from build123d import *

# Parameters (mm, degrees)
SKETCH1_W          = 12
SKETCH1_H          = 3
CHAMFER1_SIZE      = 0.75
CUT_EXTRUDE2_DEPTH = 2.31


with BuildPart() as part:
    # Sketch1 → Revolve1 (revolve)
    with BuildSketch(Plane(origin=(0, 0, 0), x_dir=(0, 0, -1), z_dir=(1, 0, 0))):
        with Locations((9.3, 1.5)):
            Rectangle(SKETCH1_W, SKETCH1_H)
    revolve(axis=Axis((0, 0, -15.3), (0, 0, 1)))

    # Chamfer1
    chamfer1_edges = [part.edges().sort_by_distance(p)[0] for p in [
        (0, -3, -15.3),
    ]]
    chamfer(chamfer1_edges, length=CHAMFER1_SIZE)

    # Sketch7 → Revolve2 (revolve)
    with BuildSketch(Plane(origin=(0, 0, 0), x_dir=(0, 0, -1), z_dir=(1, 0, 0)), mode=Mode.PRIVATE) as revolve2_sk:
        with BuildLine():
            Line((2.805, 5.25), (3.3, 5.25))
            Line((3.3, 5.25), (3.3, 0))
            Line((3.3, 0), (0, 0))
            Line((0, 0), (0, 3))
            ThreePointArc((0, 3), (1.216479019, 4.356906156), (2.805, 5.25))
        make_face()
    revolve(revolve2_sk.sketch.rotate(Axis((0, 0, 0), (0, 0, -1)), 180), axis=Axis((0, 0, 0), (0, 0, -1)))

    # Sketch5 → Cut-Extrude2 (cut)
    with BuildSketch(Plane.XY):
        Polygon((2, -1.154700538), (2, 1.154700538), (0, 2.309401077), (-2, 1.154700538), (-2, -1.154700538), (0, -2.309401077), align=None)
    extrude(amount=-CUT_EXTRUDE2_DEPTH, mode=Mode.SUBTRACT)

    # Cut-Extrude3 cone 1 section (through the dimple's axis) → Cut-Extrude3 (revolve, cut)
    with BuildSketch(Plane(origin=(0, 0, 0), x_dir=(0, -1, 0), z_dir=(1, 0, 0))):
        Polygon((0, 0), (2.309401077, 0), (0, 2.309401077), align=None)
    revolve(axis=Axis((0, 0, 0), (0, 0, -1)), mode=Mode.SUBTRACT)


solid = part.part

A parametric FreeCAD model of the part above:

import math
import FreeCAD as App
import Part
import Sketcher
Q = App.Units.Quantity


def edges_at(feature, points):
    """Names of the edges that pass closest to the given points."""
    edges = feature.Shape.Edges
    near = lambda p: min(range(len(edges)), key=lambda i: edges[i].distToShape(Part.Vertex(*p))[0])
    return sorted({f"Edge{near(p) + 1}" for p in points})


def add_polygon(sketch, points):
    """Adds a closed chain of lines whose ends are joined by coincident constraints."""
    first, n = sketch.GeometryCount, len(points)
    for a, b in zip(points, points[1:] + points[:1]):
        sketch.addGeometry(Part.LineSegment(App.Vector(*a, 0), App.Vector(*b, 0)), False)
    for i in range(n):
        sketch.addConstraint(Sketcher.Constraint("Coincident", first + i, 2, first + (i + 1) % n, 1))

doc = App.newDocument("Part")
body = doc.addObject("PartDesign::Body", "Body")

# Sketch on YZ plane
sketch1 = body.newObject("Sketcher::SketchObject", "Sketch")
sketch1.AttachmentSupport = (doc.getObject("YZ_Plane"), [""])
sketch1.MapMode = "FlatFace"
add_polygon(sketch1, [(3, -3.3), (0, -3.3), (0, -15.3), (3, -15.3)])  # lines 0-3
sketch1.addConstraint(Sketcher.Constraint("Horizontal", 0))
sketch1.addConstraint(Sketcher.Constraint("Vertical", 1))
sketch1.addConstraint(Sketcher.Constraint("Horizontal", 2))
sketch1.addConstraint(Sketcher.Constraint("Vertical", 3))
sketch1.addConstraint(Sketcher.Constraint("PointOnObject", 0, 2, -2))
sketch1.addConstraint(Sketcher.Constraint("DistanceX", 0, 2, 0, 1, Q("3 mm")))
sketch1.addConstraint(Sketcher.Constraint("DistanceY", 1, 2, 1, 1, Q("12 mm")))
sketch1.addConstraint(Sketcher.Constraint("DistanceY", 0, 2, -1, 1, Q("3.3 mm")))
revolution = body.newObject("PartDesign::Revolution", "Revolution")
revolution.Profile = sketch1
revolution.ReferenceAxis = (sketch1, ["V_Axis"])
revolution.Angle = 360
doc.recompute()

chamfer = body.newObject("PartDesign::Chamfer", "Chamfer")
chamfer.Base = (revolution, edges_at(revolution, [(0, -3, -15.3)]))
chamfer.Size = 0.75

# Sketch on YZ plane
sketch2 = body.newObject("Sketcher::SketchObject", "Sketch001")
sketch2.AttachmentSupport = (doc.getObject("YZ_Plane"), [""])
sketch2.MapMode = "FlatFace"
sketch2.addGeometry(Part.LineSegment(App.Vector(5.25, -3.3, 0), App.Vector(5.25, -2.81, 0)), False)
sketch2.addGeometry(Part.ArcOfCircle(Part.Circle(App.Vector(0, -4.71, 0), App.Vector(0, 0, 1), 5.59), math.radians(20), math.radians(58)), False)
sketch2.addGeometry(Part.LineSegment(App.Vector(3, 0, 0), App.Vector(0, 0, 0)), False)
sketch2.addGeometry(Part.LineSegment(App.Vector(0, 0, 0), App.Vector(0, -3.3, 0)), False)
sketch2.addGeometry(Part.LineSegment(App.Vector(0, -3.3, 0), App.Vector(5.25, -3.3, 0)), False)
sketch2.addConstraint(Sketcher.Constraint("Coincident", 0, 2, 1, 1))
sketch2.addConstraint(Sketcher.Constraint("Coincident", 1, 2, 2, 1))
sketch2.addConstraint(Sketcher.Constraint("Coincident", 2, 2, 3, 1))
sketch2.addConstraint(Sketcher.Constraint("Coincident", 3, 2, 4, 1))
sketch2.addConstraint(Sketcher.Constraint("Coincident", 4, 2, 0, 1))
sketch2.addConstraint(Sketcher.Constraint("Vertical", 0))
sketch2.addConstraint(Sketcher.Constraint("Horizontal", 2))
sketch2.addConstraint(Sketcher.Constraint("Vertical", 3))
sketch2.addConstraint(Sketcher.Constraint("Horizontal", 4))
sketch2.addConstraint(Sketcher.Constraint("Coincident", 2, 2, -1, 1))
sketch2.addConstraint(Sketcher.Constraint("PointOnObject", 1, 3, -2))
sketch2.addConstraint(Sketcher.Constraint("DistanceX", 2, 2, 2, 1, Q("3 mm")))
sketch2.addConstraint(Sketcher.Constraint("DistanceY", 3, 2, 3, 1, Q("3.3 mm")))
sketch2.addConstraint(Sketcher.Constraint("DistanceX", 4, 1, 4, 2, Q("5.25 mm")))
sketch2.addConstraint(Sketcher.Constraint("DistanceY", 0, 1, 0, 2, Q("0.495 mm")))
revolution2 = body.newObject("PartDesign::Revolution", "Revolution001")
revolution2.Profile = sketch2
revolution2.ReferenceAxis = (sketch2, ["V_Axis"])
revolution2.Angle = 360

# Sketch on XY plane
sketch3 = body.newObject("Sketcher::SketchObject", "Sketch002")
sketch3.AttachmentSupport = (doc.getObject("XY_Plane"), [""])
sketch3.MapMode = "FlatFace"
add_polygon(sketch3, [(2, -1.2), (2, 1.2), (0, 2.3), (-2, 1.2), (-2, -1.2), (0, -2.3)])  # lines 0-5
sketch3.addConstraint(Sketcher.Constraint("Vertical", 0))
sketch3.addConstraint(Sketcher.Constraint("Vertical", 3))
sketch3.addConstraint(Sketcher.Constraint("Symmetric", 0, 2, 3, 2, -1, 1))
sketch3.addConstraint(Sketcher.Constraint("Symmetric", 1, 2, 4, 2, -1, 1))
sketch3.addConstraint(Sketcher.Constraint("PointOnObject", 1, 2, -2))
sketch3.addConstraint(Sketcher.Constraint("Parallel", 2, 5))
sketch3.addConstraint(Sketcher.Constraint("Horizontal", 0, 2, 2, 2))
sketch3.addConstraint(Sketcher.Constraint("Angle", 1, Q("150 deg")))
sketch3.addConstraint(Sketcher.Constraint("DistanceX", -1, 1, 0, 2, Q("2 mm")))
sketch3.addConstraint(Sketcher.Constraint("DistanceY", 0, 1, 0, 2, Q("2.309401 mm")))
pocket1 = body.newObject("PartDesign::Pocket", "Pocket")
pocket1.Profile = sketch3
pocket1.Length = 2.31

# Sketch on YZ plane
sketch4 = body.newObject("Sketcher::SketchObject", "Sketch003")
sketch4.AttachmentSupport = (doc.getObject("YZ_Plane"), [""])
sketch4.MapMode = "FlatFace"
add_polygon(sketch4, [(0, 0), (-2.3, 0), (0, -2.3)])  # lines 0-2
sketch4.addConstraint(Sketcher.Constraint("Horizontal", 0))
sketch4.addConstraint(Sketcher.Constraint("Vertical", 2))
sketch4.addConstraint(Sketcher.Constraint("Coincident", 2, 2, -1, 1))
sketch4.addConstraint(Sketcher.Constraint("Equal", 0, 2))
sketch4.addConstraint(Sketcher.Constraint("DistanceX", 0, 2, 0, 1, Q("2.309401 mm")))
groove = body.newObject("PartDesign::Groove", "Groove")
groove.Profile = sketch4
groove.ReferenceAxis = (sketch4, ["V_Axis"])
groove.Angle = 360

doc.recompute()
